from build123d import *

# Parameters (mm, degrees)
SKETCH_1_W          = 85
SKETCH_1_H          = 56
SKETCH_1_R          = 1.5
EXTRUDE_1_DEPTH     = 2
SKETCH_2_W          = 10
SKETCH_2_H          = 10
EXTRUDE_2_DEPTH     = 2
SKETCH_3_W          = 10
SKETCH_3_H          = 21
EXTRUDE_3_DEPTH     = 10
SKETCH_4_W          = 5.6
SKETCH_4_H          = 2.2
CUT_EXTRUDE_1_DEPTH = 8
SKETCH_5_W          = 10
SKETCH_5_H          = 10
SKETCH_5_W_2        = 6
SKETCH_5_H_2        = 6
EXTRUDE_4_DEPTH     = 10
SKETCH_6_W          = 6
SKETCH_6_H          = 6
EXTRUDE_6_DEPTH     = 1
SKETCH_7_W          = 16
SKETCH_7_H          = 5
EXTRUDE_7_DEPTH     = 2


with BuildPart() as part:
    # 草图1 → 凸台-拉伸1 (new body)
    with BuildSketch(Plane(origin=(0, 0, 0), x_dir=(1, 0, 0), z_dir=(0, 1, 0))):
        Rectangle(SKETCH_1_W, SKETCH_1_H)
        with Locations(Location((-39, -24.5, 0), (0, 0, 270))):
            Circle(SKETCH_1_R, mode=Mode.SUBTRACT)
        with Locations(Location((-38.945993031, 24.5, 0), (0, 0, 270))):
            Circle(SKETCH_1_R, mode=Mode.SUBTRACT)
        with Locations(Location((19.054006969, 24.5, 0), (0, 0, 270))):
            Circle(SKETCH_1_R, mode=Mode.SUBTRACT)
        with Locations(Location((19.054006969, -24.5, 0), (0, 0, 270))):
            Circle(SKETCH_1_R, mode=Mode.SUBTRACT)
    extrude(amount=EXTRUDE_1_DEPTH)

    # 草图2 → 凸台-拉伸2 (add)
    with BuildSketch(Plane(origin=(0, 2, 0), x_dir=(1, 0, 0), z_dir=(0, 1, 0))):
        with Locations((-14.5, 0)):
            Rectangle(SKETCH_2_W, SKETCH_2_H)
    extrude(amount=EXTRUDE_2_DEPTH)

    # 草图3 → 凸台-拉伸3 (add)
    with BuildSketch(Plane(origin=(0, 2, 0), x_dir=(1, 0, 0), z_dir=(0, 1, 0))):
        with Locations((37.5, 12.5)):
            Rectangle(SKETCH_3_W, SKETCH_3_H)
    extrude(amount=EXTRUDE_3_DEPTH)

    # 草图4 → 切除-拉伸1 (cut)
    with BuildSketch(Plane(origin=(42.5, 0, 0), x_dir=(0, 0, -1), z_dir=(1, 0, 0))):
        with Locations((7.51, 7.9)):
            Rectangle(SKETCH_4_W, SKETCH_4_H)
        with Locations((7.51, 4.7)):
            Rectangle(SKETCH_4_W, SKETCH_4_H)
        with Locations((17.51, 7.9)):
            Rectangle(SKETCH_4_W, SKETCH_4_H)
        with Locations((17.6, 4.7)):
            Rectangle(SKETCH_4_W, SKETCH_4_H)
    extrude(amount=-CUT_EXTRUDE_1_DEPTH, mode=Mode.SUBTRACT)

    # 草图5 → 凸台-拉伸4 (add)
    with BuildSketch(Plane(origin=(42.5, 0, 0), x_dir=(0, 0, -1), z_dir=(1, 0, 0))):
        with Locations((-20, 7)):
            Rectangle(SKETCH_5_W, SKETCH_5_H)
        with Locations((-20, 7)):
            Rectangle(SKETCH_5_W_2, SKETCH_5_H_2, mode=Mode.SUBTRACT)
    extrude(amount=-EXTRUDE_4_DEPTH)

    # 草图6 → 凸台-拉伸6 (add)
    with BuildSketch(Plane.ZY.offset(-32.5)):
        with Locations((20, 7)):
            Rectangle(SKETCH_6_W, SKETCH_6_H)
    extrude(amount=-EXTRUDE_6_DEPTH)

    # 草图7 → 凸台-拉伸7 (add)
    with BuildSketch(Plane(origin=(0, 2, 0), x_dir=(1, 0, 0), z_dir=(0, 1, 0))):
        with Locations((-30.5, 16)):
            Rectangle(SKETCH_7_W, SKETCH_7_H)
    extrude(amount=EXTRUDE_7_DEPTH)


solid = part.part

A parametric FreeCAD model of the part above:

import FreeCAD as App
import Part
import Sketcher

V = App.Vector


def add_polygon(sketch, points):
    """Adds a closed chain of lines whose ends are joined by coincident constraints."""
    first, n = sketch.GeometryCount, len(points)
    for a, b in zip(points, points[1:] + points[:1]):
        sketch.addGeometry(Part.LineSegment(App.Vector(*a, 0), App.Vector(*b, 0)), False)
    for i in range(n):
        sketch.addConstraint(Sketcher.Constraint("Coincident", first + i, 2, first + (i + 1) % n, 1))

doc = App.newDocument("Part")
body = doc.addObject("PartDesign::Body", "Body")

# Sketch on XZ plane
sketch1 = body.newObject("Sketcher::SketchObject", "Sketch")
sketch1.AttachmentSupport = (doc.getObject("XZ_Plane"), [""])
sketch1.MapMode = "FlatFace"
add_polygon(sketch1, [(-42.5, -28), (-42.5, 28), (42.5, 28), (42.5, -28)])  # lines 0-3
sketch1.addGeometry(Part.Circle(V(-39, 24.5, 0), V(0, 0, 1), 1.5), False)  # 4
sketch1.addGeometry(Part.Circle(V(19.1, 24.5, 0), V(0, 0, 1), 1.5), False)  # 5
sketch1.addGeometry(Part.Circle(V(-38.9, -24.5, 0), V(0, 0, 1), 1.5), False)  # 6
sketch1.addGeometry(Part.Circle(V(19.1, -24.5, 0), V(0, 0, 1), 1.5), False)  # 7
sketch1.addConstraint([
    Sketcher.Constraint("Vertical", 0),
    Sketcher.Constraint("Horizontal", 1),
    Sketcher.Constraint("Vertical", 2),
    Sketcher.Constraint("Horizontal", 3),
    Sketcher.Constraint("Equal", 4, 5),
    Sketcher.Constraint("Equal", 5, 6),
    Sketcher.Constraint("Equal", 6, 7),
    Sketcher.Constraint("Symmetric", 0, 2, 2, 2, -1, 1),
    Sketcher.Constraint("Symmetric", 5, 3, 7, 3, -1),
    Sketcher.Constraint("Horizontal", 4, 3, 5, 3),
    Sketcher.Constraint("Horizontal", 6, 3, 7, 3),
    Sketcher.Constraint("Diameter", 4, 3.0),
    Sketcher.Constraint("DistanceX", 1, 1, 1, 2, 85.0),
    Sketcher.Constraint("DistanceY", 0, 1, 0, 2, 56.0),
    Sketcher.Constraint("DistanceX", 4, 3, -1, 1, 39.0),
    Sketcher.Constraint("DistanceY", 6, 3, 4, 3, 49.0),
    Sketcher.Constraint("DistanceX", 6, 3, 5, 3, 58.0),
    Sketcher.Constraint("DistanceX", -1, 1, 5, 3, 19.054007),
])
pad1 = body.newObject("PartDesign::Pad", "Pad")
pad1.Profile = sketch1
pad1.Length = 2
pad1.Reversed = True

# Sketch on XZ plane
sketch2 = body.newObject("Sketcher::SketchObject", "Sketch001")
sketch2.AttachmentSupport = (doc.getObject("XZ_Plane"), [""])
sketch2.MapMode = "FlatFace"
sketch2.AttachmentOffset = App.Placement(V(0, 0, -2), App.Rotation())
add_polygon(sketch2, [(-20, -5), (-20, 5), (-10, 5), (-10, -5)])  # lines 0-3
sketch2.addConstraint([
    Sketcher.Constraint("Vertical", 0),
    Sketcher.Constraint("Horizontal", 1),
    Sketcher.Constraint("Vertical", 2),
    Sketcher.Constraint("Horizontal", 3),
    Sketcher.Constraint("Equal", 3, 0),
    Sketcher.Constraint("DistanceX", 1, 1, 1, 2, 10.0),
    Sketcher.Constraint("DistanceY", -1, 1, 0, 2, 5.0),
    Sketcher.Constraint("DistanceX", 0, 2, -1, 1, 19.5),
])
pad2 = body.newObject("PartDesign::Pad", "Pad001")
pad2.Profile = sketch2
pad2.Length = 2
pad2.Reversed = True

# Sketch on XZ plane
sketch3 = body.newObject("Sketcher::SketchObject", "Sketch002")
sketch3.AttachmentSupport = (doc.getObject("XZ_Plane"), [""])
sketch3.MapMode = "FlatFace"
sketch3.AttachmentOffset = App.Placement(V(0, 0, -2), App.Rotation())
add_polygon(sketch3, [(32, -23), (32, -2), (42, -2), (42, -23)])  # lines 0-3
sketch3.addConstraint([
    Sketcher.Constraint("Vertical", 0),
    Sketcher.Constraint("Horizontal", 1),
    Sketcher.Constraint("Vertical", 2),
    Sketcher.Constraint("Horizontal", 3),
    Sketcher.Constraint("DistanceX", 1, 1, 1, 2, 10.0),
    Sketcher.Constraint("DistanceY", 0, 1, 0, 2, 21.0),
    Sketcher.Constraint("DistanceY", 0, 2, -1, 1, 2.0),
    Sketcher.Constraint("DistanceX", -1, 1, 0, 2, 32.5),
])
pad3 = body.newObject("PartDesign::Pad", "Pad002")
pad3.Profile = sketch3
pad3.Length = 10
pad3.Reversed = True

# Sketch on YZ plane
sketch4 = body.newObject("Sketcher::SketchObject", "Sketch003")
sketch4.AttachmentSupport = (doc.getObject("YZ_Plane"), [""])
sketch4.MapMode = "FlatFace"
sketch4.AttachmentOffset = App.Placement(V(0, 0, 42.5), App.Rotation())
add_polygon(sketch4, [(9, -4.7), (6.8, -4.7), (6.8, -10.3), (9, -10.3)])  # lines 0-3
add_polygon(sketch4, [(5.8, -4.7), (3.6, -4.7), (3.6, -10.3), (5.8, -10.3)])  # lines 4-7
add_polygon(sketch4, [(9, -14.7), (6.8, -14.7), (6.8, -20.3), (9, -20.3)])  # lines 8-11
add_polygon(sketch4, [(5.8, -14.8), (3.6, -14.8), (3.6, -20.4), (5.8, -20.4)])  # lines 12-15
sketch4.addConstraint([
    Sketcher.Constraint("Horizontal", 0),
    Sketcher.Constraint("Vertical", 1),
    Sketcher.Constraint("Horizontal", 2),
    Sketcher.Constraint("Vertical", 3),
    Sketcher.Constraint("Horizontal", 4),
    Sketcher.Constraint("Vertical", 5),
    Sketcher.Constraint("Horizontal", 6),
    Sketcher.Constraint("Vertical", 7),
    Sketcher.Constraint("Horizontal", 8),
    Sketcher.Constraint("Vertical", 9),
    Sketcher.Constraint("Horizontal", 10),
    Sketcher.Constraint("Vertical", 11),
    Sketcher.Constraint("Horizontal", 12),
    Sketcher.Constraint("Vertical", 13),
    Sketcher.Constraint("Horizontal", 14),
    Sketcher.Constraint("Vertical", 15),
    Sketcher.Constraint("Horizontal", 3, 2, 4, 2),
    Sketcher.Constraint("Horizontal", 2, 2, 5, 2),
    Sketcher.Constraint("Vertical", 1, 2, 8, 2),
    Sketcher.Constraint("Vertical", 3, 2, 10, 2),
    Sketcher.Constraint("Vertical", 5, 2, 12, 2),
    Sketcher.Constraint("Vertical", 7, 2, 14, 2),
    Sketcher.Constraint("Equal", 2, 4),
    Sketcher.Constraint("Equal", 7, 9),
    Sketcher.Constraint("Equal", 11, 13),
    Sketcher.Constraint("DistanceX", 0, 2, 0, 1, 2.2),
    Sketcher.Constraint("DistanceY", 1, 2, 1, 1, 5.6),
    Sketcher.Constraint("DistanceX", -1, 1, 2, 2, 9.0),
    Sketcher.Constraint("DistanceX", 6, 2, 1, 2, 1.0),
    Sketcher.Constraint("DistanceY", 8, 2, 0, 2, 10.0),
    Sketcher.Constraint("DistanceY", 12, 2, -1, 1, 14.8),
    Sketcher.Constraint("DistanceY", 0, 2, -1, 1, 4.71),
])
pocket1 = body.newObject("PartDesign::Pocket", "Pocket")
pocket1.Profile = sketch4
pocket1.Length = 8

# Sketch on YZ plane
sketch5 = body.newObject("Sketcher::SketchObject", "Sketch004")
sketch5.AttachmentSupport = (doc.getObject("YZ_Plane"), [""])
sketch5.MapMode = "FlatFace"
sketch5.AttachmentOffset = App.Placement(V(0, 0, 42.5), App.Rotation())
add_polygon(sketch5, [(12, 25), (2, 25), (2, 15), (12, 15)])  # lines 0-3
add_polygon(sketch5, [(4, 17), (4, 23), (10, 23), (10, 17)])  # lines 4-7
sketch5.addConstraint([
    Sketcher.Constraint("Horizontal", 0),
    Sketcher.Constraint("Vertical", 1),
    Sketcher.Constraint("Horizontal", 2),
    Sketcher.Constraint("Vertical", 3),
    Sketcher.Constraint("Vertical", 4),
    Sketcher.Constraint("Horizontal", 5),
    Sketcher.Constraint("Vertical", 6),
    Sketcher.Constraint("Horizontal", 7),
    Sketcher.Constraint("Equal", 2, 1),
    Sketcher.Constraint("Equal", 7, 4),
    Sketcher.Constraint("DistanceX", 0, 2, 0, 1, 10.0),
    Sketcher.Constraint("DistanceX", 5, 1, 5, 2, 6.0),
    Sketcher.Constraint("DistanceX", -1, 1, 0, 2, 2.0),
    Sketcher.Constraint("DistanceY", -1, 1, 0, 2, 25.0),
    Sketcher.Constraint("DistanceX", -1, 1, 4, 2, 4.0),
    Sketcher.Constraint("DistanceY", -1, 1, 4, 2, 23.0),
])
pad4 = body.newObject("PartDesign::Pad", "Pad003")
pad4.Profile = sketch5
pad4.Length = 10
pad4.Reversed = True

# Sketch on YZ plane
sketch6 = body.newObject("Sketcher::SketchObject", "Sketch005")
sketch6.AttachmentSupport = (doc.getObject("YZ_Plane"), [""])
sketch6.MapMode = "FlatFace"
sketch6.AttachmentOffset = App.Placement(V(0, 0, 32.5), App.Rotation())
add_polygon(sketch6, [(10, 17), (4, 17), (4, 23), (10, 23)])  # lines 0-3
sketch6.addConstraint([
    Sketcher.Constraint("Horizontal", 0),
    Sketcher.Constraint("Vertical", 1),
    Sketcher.Constraint("Horizontal", 2),
    Sketcher.Constraint("Vertical", 3),
    Sketcher.Constraint("Equal", 2, 1),
    Sketcher.Constraint("DistanceX", 0, 2, 0, 1, 6.0),
    Sketcher.Constraint("DistanceX", -1, 1, 0, 2, 4.0),
    Sketcher.Constraint("DistanceY", -1, 1, 0, 2, 17.0),
])
pad5 = body.newObject("PartDesign::Pad", "Pad004")
pad5.Profile = sketch6
pad5.Length = 1

# Sketch on XZ plane
sketch7 = body.newObject("Sketcher::SketchObject", "Sketch006")
sketch7.AttachmentSupport = (doc.getObject("XZ_Plane"), [""])
sketch7.MapMode = "FlatFace"
sketch7.AttachmentOffset = App.Placement(V(0, 0, -2), App.Rotation())
add_polygon(sketch7, [(-38, -18), (-38, -14), (-22, -14), (-22, -18)])  # lines 0-3
sketch7.addConstraint([
    Sketcher.Constraint("Vertical", 0),
    Sketcher.Constraint("Horizontal", 1),
    Sketcher.Constraint("Vertical", 2),
    Sketcher.Constraint("Horizontal", 3),
    Sketcher.Constraint("DistanceX", 1, 1, 1, 2, 16.0),
    Sketcher.Constraint("DistanceY", 0, 1, 0, 2, 5.0),
    Sketcher.Constraint("DistanceX", 0, 2, -1, 1, 38.5),
    Sketcher.Constraint("DistanceY", 0, 2, -1, 1, 13.5),
])
pad6 = body.newObject("PartDesign::Pad", "Pad005")
pad6.Profile = sketch7
pad6.Length = 2
pad6.Reversed = True

doc.recompute()
